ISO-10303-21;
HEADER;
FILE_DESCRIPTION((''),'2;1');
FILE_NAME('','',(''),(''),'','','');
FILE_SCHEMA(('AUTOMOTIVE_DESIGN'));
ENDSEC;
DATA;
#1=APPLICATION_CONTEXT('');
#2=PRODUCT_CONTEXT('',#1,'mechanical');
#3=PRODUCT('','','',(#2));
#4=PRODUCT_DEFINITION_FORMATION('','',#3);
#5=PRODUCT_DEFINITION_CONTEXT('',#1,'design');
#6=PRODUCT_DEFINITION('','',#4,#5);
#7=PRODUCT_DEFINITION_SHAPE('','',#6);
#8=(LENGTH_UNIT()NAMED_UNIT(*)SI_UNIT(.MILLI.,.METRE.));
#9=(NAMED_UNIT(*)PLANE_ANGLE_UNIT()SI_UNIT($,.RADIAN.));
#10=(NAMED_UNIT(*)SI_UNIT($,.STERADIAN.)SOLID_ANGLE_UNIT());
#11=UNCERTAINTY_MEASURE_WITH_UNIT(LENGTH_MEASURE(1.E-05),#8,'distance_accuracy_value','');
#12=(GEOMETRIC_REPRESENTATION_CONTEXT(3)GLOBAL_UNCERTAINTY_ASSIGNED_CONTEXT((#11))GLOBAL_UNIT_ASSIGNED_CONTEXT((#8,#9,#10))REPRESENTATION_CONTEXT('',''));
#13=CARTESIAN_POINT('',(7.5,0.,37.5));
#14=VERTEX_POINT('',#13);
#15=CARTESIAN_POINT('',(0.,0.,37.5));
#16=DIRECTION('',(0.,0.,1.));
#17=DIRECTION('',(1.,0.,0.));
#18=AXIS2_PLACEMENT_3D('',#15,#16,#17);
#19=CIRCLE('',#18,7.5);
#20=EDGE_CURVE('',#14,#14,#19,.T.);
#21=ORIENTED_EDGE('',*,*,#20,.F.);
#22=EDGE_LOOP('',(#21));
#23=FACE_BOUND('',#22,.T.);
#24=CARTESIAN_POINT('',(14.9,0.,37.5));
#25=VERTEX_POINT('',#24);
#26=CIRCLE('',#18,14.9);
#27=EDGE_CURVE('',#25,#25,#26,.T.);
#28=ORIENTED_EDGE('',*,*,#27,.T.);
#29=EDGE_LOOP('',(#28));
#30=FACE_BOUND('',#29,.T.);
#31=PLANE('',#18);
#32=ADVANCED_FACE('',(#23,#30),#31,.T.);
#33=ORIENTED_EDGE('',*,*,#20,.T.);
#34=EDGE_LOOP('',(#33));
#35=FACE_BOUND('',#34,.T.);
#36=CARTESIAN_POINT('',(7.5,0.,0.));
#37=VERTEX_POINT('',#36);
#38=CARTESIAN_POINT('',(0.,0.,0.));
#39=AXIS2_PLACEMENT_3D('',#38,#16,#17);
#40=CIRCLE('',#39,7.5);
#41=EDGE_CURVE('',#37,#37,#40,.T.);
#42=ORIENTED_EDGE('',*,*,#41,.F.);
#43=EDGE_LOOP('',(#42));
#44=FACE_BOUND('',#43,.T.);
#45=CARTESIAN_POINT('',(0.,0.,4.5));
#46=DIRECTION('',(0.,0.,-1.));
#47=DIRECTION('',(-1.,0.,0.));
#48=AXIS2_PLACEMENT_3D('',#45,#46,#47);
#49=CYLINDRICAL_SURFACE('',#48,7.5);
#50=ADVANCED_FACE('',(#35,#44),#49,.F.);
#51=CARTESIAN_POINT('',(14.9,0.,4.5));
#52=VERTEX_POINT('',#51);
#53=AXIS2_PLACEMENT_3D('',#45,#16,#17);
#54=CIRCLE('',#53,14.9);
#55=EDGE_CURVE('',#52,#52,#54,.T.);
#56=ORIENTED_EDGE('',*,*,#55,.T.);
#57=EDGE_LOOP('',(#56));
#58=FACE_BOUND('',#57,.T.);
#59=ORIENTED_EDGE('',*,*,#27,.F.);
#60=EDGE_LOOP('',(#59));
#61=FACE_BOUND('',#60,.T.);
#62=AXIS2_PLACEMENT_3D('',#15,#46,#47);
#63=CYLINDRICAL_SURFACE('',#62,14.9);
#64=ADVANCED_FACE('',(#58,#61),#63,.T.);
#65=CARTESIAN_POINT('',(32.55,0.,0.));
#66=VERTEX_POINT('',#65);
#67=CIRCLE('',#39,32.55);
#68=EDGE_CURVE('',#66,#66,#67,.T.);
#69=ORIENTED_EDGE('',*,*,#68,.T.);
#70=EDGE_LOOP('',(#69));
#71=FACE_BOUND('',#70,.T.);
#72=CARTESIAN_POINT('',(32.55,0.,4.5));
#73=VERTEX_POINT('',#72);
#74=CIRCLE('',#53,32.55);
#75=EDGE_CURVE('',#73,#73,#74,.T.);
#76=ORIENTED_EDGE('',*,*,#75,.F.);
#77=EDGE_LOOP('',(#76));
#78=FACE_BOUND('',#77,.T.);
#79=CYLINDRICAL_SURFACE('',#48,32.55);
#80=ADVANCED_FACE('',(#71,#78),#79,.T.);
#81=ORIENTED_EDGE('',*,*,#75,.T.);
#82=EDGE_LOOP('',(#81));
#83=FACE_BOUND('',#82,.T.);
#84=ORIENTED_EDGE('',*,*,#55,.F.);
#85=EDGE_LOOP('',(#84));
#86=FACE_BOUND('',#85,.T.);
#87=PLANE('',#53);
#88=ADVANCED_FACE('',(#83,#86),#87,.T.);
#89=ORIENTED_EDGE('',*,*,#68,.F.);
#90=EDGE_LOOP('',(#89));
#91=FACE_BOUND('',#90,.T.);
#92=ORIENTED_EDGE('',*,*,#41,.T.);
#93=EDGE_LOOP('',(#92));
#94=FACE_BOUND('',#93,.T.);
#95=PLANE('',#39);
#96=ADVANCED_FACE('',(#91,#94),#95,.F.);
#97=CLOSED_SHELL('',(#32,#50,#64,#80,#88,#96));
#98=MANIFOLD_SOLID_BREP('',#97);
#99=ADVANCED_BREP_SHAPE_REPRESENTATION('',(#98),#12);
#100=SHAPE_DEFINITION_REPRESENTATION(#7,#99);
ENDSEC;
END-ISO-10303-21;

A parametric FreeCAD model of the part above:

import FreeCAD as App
import Part
import Sketcher

V = App.Vector
Q = App.Units.Quantity

doc = App.newDocument("Part")
params = doc.addObject("Spreadsheet::Sheet", "Params")
for row, (alias, value) in enumerate([
    ("sketch1_diameter", "15 mm"),
    ("sketch1_diameter2", "65.1 mm"),
    ("pad1_length", "4.5 mm"),
    ("sketch2_diameter", "15 mm"),
    ("sketch2_diameter2", "29.8 mm"),
    ("pad2_length", "33 mm"),
], start=1):
    params.set(f"A{row}", alias)
    params.set(f"B{row}", "=" + value)
    params.setAlias(f"B{row}", alias)

body = doc.addObject("PartDesign::Body", "Body")

sketch1 = body.newObject("Sketcher::SketchObject", "Sketch")
sketch1.AttachmentSupport = (doc.getObject("XY_Plane"), [""])
sketch1.MapMode = "FlatFace"
sketch1.addGeometry([
    Part.Circle(V(0, 0, 0), V(0, 0, 1), 33),
    Part.Circle(V(0, 0, 0), V(0, 0, 1), 8),
], False)
sketch1.addConstraint([
    Sketcher.Constraint("Coincident", 0, 3, -1, 1),
    Sketcher.Constraint("Coincident", 1, 3, -1, 1),
    Sketcher.Constraint("Diameter", 1, Q("15 mm")),
    Sketcher.Constraint("Diameter", 0, Q("65.1 mm")),
])
sketch1.setExpression("Constraints[2]", "Params.sketch1_diameter")
sketch1.setExpression("Constraints[3]", "Params.sketch1_diameter2")
pad1 = body.newObject("PartDesign::Pad", "Pad")
pad1.Profile = sketch1
pad1.setExpression("Length", "Params.pad1_length")

sketch2 = body.newObject("Sketcher::SketchObject", "Sketch001")
sketch2.AttachmentSupport = (doc.getObject("XY_Plane"), [""])
sketch2.MapMode = "FlatFace"
sketch2.AttachmentOffset = App.Placement(V(0, 0, 4.5), App.Rotation())
sketch2.addGeometry([
    Part.Circle(V(0, 0, 0), V(0, 0, 1), 15),
    Part.Circle(V(0, 0, 0), V(0, 0, 1), 8),
], False)
sketch2.addConstraint([
    Sketcher.Constraint("Coincident", 0, 3, -1, 1),
    Sketcher.Constraint("Coincident", 1, 3, -1, 1),
    Sketcher.Constraint("Diameter", 1, Q("15 mm")),
    Sketcher.Constraint("Diameter", 0, Q("29.8 mm")),
])
sketch2.setExpression("Constraints[2]", "Params.sketch2_diameter")
sketch2.setExpression("Constraints[3]", "Params.sketch2_diameter2")
pad2 = body.newObject("PartDesign::Pad", "Pad001")
pad2.Profile = sketch2
pad2.setExpression("Length", "Params.pad2_length")

doc.recompute()
